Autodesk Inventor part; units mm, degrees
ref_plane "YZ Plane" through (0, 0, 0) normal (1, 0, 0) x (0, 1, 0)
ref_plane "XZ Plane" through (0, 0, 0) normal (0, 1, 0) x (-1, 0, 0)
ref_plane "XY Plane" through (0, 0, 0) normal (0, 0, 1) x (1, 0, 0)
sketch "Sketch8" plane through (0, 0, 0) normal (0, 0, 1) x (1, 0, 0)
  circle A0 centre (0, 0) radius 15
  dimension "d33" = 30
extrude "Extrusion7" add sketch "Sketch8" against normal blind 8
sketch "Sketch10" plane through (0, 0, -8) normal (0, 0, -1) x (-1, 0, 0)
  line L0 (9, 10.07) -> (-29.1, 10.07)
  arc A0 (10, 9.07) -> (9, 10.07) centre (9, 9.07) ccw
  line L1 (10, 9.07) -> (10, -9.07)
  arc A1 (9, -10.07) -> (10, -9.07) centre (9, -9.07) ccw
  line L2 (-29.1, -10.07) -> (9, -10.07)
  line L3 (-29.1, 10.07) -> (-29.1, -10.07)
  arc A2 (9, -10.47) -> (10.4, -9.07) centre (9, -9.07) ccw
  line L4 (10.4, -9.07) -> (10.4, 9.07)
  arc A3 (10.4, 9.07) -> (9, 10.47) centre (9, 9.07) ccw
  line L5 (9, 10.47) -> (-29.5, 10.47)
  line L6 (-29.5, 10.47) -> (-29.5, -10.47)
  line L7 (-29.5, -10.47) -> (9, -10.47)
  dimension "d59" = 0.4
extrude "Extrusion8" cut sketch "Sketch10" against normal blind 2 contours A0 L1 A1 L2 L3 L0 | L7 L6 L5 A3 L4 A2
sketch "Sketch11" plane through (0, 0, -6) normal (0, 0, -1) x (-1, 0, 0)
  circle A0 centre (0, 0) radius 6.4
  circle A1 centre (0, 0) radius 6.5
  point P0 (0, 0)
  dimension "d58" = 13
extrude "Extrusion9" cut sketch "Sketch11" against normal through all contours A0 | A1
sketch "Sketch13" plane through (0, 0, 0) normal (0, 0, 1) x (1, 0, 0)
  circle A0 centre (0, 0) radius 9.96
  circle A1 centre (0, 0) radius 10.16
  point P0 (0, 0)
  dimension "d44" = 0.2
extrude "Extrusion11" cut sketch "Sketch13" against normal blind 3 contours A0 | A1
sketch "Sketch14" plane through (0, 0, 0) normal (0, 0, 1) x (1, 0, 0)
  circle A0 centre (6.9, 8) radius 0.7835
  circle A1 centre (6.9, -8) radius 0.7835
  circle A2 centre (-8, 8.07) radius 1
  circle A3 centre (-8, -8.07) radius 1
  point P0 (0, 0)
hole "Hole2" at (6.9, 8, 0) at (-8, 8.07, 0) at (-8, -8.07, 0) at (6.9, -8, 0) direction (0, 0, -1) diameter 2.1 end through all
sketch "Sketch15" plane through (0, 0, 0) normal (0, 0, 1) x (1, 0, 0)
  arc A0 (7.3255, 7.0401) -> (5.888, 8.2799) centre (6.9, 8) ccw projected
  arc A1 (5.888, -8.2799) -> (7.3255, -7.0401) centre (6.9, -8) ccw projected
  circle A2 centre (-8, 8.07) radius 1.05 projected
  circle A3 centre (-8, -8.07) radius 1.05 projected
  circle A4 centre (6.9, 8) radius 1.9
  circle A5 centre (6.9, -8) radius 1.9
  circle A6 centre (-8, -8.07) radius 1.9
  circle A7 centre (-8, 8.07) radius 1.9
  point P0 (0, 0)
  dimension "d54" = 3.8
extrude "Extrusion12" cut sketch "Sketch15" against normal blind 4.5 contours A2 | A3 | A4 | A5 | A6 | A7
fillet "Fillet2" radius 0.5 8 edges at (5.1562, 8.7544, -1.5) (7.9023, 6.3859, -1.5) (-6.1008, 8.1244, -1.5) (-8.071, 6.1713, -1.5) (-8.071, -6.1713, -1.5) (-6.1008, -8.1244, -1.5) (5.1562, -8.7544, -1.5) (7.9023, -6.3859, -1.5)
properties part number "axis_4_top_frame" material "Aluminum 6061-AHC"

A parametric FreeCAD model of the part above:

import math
import FreeCAD as App
import Part
import Sketcher


def edges_at(feature, points):
    """Names of the edges that pass closest to the given points."""
    edges = feature.Shape.Edges
    near = lambda p: min(range(len(edges)), key=lambda i: edges[i].distToShape(Part.Vertex(*p))[0])
    return sorted({f"Edge{near(p) + 1}" for p in points})

doc = App.newDocument("Part")
body = doc.addObject("PartDesign::Body", "Body")

# Sketch on XY plane
sketch1 = doc.addObject("Sketcher::SketchObject", "Sketch")
body.addObject(sketch1)
sketch1.AttachmentSupport = (doc.XY_Plane, [""])
sketch1.MapMode = "FlatFace"
sketch1.addGeometry(Part.Circle(App.Vector(0, 0, 0), App.Vector(0, 0, 1), 15), False)
sketch1.addConstraint([
    Sketcher.Constraint("Coincident", 0, 3, -1, 1),
    Sketcher.Constraint("Diameter", 0, 30.0),
])
pad1 = doc.addObject("PartDesign::Pad", "Pad")
body.addObject(pad1)
pad1.Profile = sketch1
pad1.Length = 8
pad1.Reversed = True

# Sketch on XY plane
sketch2 = doc.addObject("Sketcher::SketchObject", "Sketch001")
body.addObject(sketch2)
sketch2.AttachmentSupport = (doc.XY_Plane, [""])
sketch2.MapMode = "FlatFace"
sketch2.AttachmentOffset = App.Placement(App.Vector(0, 0, -8), App.Rotation())
sketch2.addGeometry([
    Part.LineSegment(App.Vector(29.5, -10.5, 0), App.Vector(-9, -10.5, 0)),  # 0
    Part.ArcOfCircle(Part.Circle(App.Vector(-9, -9.1, 0), App.Vector(0, 0, 1), 1.4), math.radians(180), math.radians(270)),  # 1
    Part.LineSegment(App.Vector(-10.4, -9.1, 0), App.Vector(-10.4, 9.1, 0)),  # 2
    Part.ArcOfCircle(Part.Circle(App.Vector(-9, 9.1, 0), App.Vector(0, 0, 1), 1.4), math.radians(90), math.radians(180)),  # 3
    Part.LineSegment(App.Vector(-9, 10.5, 0), App.Vector(29.5, 10.5, 0)),  # 4
    Part.LineSegment(App.Vector(29.5, 10.5, 0), App.Vector(29.5, -10.5, 0)),  # 5
], False)
sketch2.addConstraint([
    Sketcher.Constraint("Tangent", 0, 2, 1, 2),
    Sketcher.Constraint("Tangent", 1, 1, 2, 1),
    Sketcher.Constraint("Tangent", 2, 2, 3, 2),
    Sketcher.Constraint("Tangent", 3, 1, 4, 1),
    Sketcher.Constraint("Coincident", 4, 2, 5, 1),
    Sketcher.Constraint("Coincident", 5, 2, 0, 1),
    Sketcher.Constraint("Horizontal", 0),
    Sketcher.Constraint("Vertical", 2),
    Sketcher.Constraint("Horizontal", 4),
    Sketcher.Constraint("Vertical", 5),
    Sketcher.Constraint("Equal", 1, 3),
    Sketcher.Constraint("Radius", 1, 1.4),
    Sketcher.Constraint("DistanceX", 0, 2, 0, 1, 38.5),
    Sketcher.Constraint("DistanceX", 1, 3, -1, 1, 9.0),
    Sketcher.Constraint("DistanceY", 2, 1, 2, 2, 18.14),
    Sketcher.Constraint("DistanceY", 1, 3, -1, 1, 9.07),
])
pocket1 = doc.addObject("PartDesign::Pocket", "Pocket")
body.addObject(pocket1)
pocket1.Profile = sketch2
pocket1.Length = 2
pocket1.Reversed = True

# Sketch on XY plane
sketch3 = doc.addObject("Sketcher::SketchObject", "Sketch002")
body.addObject(sketch3)
sketch3.AttachmentSupport = (doc.XY_Plane, [""])
sketch3.MapMode = "FlatFace"
sketch3.AttachmentOffset = App.Placement(App.Vector(0, 0, -6), App.Rotation())
sketch3.addGeometry(Part.Circle(App.Vector(0, 0, 0), App.Vector(0, 0, 1), 6), False)
sketch3.addConstraint([
    Sketcher.Constraint("Coincident", 0, 3, -1, 1),
    Sketcher.Constraint("Diameter", 0, 13.0),
])
pocket2 = doc.addObject("PartDesign::Pocket", "Pocket001")
body.addObject(pocket2)
pocket2.Profile = sketch3
pocket2.Type = "ThroughAll"
pocket2.Reversed = True

# Sketch on XY plane
sketch4 = doc.addObject("Sketcher::SketchObject", "Sketch003")
body.addObject(sketch4)
sketch4.AttachmentSupport = (doc.XY_Plane, [""])
sketch4.MapMode = "FlatFace"
sketch4.addGeometry(Part.Circle(App.Vector(0, 0, 0), App.Vector(0, 0, 1), 10), False)
sketch4.addConstraint([
    Sketcher.Constraint("Coincident", 0, 3, -1, 1),
    Sketcher.Constraint("Diameter", 0, 20.32),
])
pocket3 = doc.addObject("PartDesign::Pocket", "Pocket002")
body.addObject(pocket3)
pocket3.Profile = sketch4
pocket3.Length = 3

# Sketch on XY plane
sketch5 = doc.addObject("Sketcher::SketchObject", "Sketch004")
body.addObject(sketch5)
sketch5.AttachmentSupport = (doc.XY_Plane, [""])
sketch5.MapMode = "FlatFace"
sketch5.addGeometry([
    Part.Circle(App.Vector(6.9, 8, 0), App.Vector(0, 0, 1), 1.1),
    Part.Circle(App.Vector(-8, 8.1, 0), App.Vector(0, 0, 1), 1.1),
    Part.Circle(App.Vector(-8, -8.1, 0), App.Vector(0, 0, 1), 1.1),
    Part.Circle(App.Vector(6.9, -8, 0), App.Vector(0, 0, 1), 1.1),
], False)
sketch5.addConstraint([
    Sketcher.Constraint("Equal", 0, 1),
    Sketcher.Constraint("Equal", 1, 2),
    Sketcher.Constraint("Equal", 2, 3),
    Sketcher.Constraint("Symmetric", 1, 3, 2, 3, -1),
    Sketcher.Constraint("Symmetric", 0, 3, 3, 3, -1),
    Sketcher.Constraint("Diameter", 0, 2.1),
    Sketcher.Constraint("DistanceY", -1, 1, 0, 3, 8.0),
    Sketcher.Constraint("DistanceX", 1, 3, -1, 1, 8.0),
    Sketcher.Constraint("DistanceX", -1, 1, 0, 3, 6.9),
    Sketcher.Constraint("DistanceY", -1, 1, 1, 3, 8.07),
])
doc.recompute()
hole = doc.addObject("PartDesign::Hole", "Hole")
body.addObject(hole)
hole.Profile = sketch5
hole.ThreadType = "None"
hole.Diameter = 2.1
hole.DepthType = "ThroughAll"

# Sketch on XY plane
sketch6 = doc.addObject("Sketcher::SketchObject", "Sketch005")
body.addObject(sketch6)
sketch6.AttachmentSupport = (doc.XY_Plane, [""])
sketch6.MapMode = "FlatFace"
sketch6.addGeometry([
    Part.Circle(App.Vector(-8, 8.1, 0), App.Vector(0, 0, 1), 1.9),
    Part.Circle(App.Vector(-8, -8.1, 0), App.Vector(0, 0, 1), 1.9),
    Part.Circle(App.Vector(6.9, 8, 0), App.Vector(0, 0, 1), 1.9),
    Part.Circle(App.Vector(6.9, -8, 0), App.Vector(0, 0, 1), 1.9),
], False)
sketch6.addConstraint([
    Sketcher.Constraint("Equal", 0, 1),
    Sketcher.Constraint("Equal", 1, 2),
    Sketcher.Constraint("Equal", 2, 3),
    Sketcher.Constraint("Symmetric", 0, 3, 1, 3, -1),
    Sketcher.Constraint("Symmetric", 2, 3, 3, 3, -1),
    Sketcher.Constraint("Diameter", 0, 3.8),
    Sketcher.Constraint("DistanceX", 0, 3, -1, 1, 8.0),
    Sketcher.Constraint("DistanceY", -1, 1, 2, 3, 8.0),
    Sketcher.Constraint("DistanceX", -1, 1, 2, 3, 6.9),
    Sketcher.Constraint("DistanceY", -1, 1, 0, 3, 8.07),
])
pocket4 = doc.addObject("PartDesign::Pocket", "Pocket003")
body.addObject(pocket4)
pocket4.Profile = sketch6
pocket4.Length = 4.5
doc.recompute()

fillet = doc.addObject("PartDesign::Fillet", "Fillet")
body.addObject(fillet)
fillet.Base = (pocket4, edges_at(pocket4, [
    (5.156, 8.754, -1.5),
    (7.902, 6.386, -1.5),
    (-6.101, 8.124, -1.5),
    (-8.071, 6.171, -1.5),
    (-8.071, -6.171, -1.5),
    (-6.101, -8.124, -1.5),
    (5.156, -8.754, -1.5),
    (7.902, -6.386, -1.5),
]))
fillet.Radius = 0.5

doc.recompute()
